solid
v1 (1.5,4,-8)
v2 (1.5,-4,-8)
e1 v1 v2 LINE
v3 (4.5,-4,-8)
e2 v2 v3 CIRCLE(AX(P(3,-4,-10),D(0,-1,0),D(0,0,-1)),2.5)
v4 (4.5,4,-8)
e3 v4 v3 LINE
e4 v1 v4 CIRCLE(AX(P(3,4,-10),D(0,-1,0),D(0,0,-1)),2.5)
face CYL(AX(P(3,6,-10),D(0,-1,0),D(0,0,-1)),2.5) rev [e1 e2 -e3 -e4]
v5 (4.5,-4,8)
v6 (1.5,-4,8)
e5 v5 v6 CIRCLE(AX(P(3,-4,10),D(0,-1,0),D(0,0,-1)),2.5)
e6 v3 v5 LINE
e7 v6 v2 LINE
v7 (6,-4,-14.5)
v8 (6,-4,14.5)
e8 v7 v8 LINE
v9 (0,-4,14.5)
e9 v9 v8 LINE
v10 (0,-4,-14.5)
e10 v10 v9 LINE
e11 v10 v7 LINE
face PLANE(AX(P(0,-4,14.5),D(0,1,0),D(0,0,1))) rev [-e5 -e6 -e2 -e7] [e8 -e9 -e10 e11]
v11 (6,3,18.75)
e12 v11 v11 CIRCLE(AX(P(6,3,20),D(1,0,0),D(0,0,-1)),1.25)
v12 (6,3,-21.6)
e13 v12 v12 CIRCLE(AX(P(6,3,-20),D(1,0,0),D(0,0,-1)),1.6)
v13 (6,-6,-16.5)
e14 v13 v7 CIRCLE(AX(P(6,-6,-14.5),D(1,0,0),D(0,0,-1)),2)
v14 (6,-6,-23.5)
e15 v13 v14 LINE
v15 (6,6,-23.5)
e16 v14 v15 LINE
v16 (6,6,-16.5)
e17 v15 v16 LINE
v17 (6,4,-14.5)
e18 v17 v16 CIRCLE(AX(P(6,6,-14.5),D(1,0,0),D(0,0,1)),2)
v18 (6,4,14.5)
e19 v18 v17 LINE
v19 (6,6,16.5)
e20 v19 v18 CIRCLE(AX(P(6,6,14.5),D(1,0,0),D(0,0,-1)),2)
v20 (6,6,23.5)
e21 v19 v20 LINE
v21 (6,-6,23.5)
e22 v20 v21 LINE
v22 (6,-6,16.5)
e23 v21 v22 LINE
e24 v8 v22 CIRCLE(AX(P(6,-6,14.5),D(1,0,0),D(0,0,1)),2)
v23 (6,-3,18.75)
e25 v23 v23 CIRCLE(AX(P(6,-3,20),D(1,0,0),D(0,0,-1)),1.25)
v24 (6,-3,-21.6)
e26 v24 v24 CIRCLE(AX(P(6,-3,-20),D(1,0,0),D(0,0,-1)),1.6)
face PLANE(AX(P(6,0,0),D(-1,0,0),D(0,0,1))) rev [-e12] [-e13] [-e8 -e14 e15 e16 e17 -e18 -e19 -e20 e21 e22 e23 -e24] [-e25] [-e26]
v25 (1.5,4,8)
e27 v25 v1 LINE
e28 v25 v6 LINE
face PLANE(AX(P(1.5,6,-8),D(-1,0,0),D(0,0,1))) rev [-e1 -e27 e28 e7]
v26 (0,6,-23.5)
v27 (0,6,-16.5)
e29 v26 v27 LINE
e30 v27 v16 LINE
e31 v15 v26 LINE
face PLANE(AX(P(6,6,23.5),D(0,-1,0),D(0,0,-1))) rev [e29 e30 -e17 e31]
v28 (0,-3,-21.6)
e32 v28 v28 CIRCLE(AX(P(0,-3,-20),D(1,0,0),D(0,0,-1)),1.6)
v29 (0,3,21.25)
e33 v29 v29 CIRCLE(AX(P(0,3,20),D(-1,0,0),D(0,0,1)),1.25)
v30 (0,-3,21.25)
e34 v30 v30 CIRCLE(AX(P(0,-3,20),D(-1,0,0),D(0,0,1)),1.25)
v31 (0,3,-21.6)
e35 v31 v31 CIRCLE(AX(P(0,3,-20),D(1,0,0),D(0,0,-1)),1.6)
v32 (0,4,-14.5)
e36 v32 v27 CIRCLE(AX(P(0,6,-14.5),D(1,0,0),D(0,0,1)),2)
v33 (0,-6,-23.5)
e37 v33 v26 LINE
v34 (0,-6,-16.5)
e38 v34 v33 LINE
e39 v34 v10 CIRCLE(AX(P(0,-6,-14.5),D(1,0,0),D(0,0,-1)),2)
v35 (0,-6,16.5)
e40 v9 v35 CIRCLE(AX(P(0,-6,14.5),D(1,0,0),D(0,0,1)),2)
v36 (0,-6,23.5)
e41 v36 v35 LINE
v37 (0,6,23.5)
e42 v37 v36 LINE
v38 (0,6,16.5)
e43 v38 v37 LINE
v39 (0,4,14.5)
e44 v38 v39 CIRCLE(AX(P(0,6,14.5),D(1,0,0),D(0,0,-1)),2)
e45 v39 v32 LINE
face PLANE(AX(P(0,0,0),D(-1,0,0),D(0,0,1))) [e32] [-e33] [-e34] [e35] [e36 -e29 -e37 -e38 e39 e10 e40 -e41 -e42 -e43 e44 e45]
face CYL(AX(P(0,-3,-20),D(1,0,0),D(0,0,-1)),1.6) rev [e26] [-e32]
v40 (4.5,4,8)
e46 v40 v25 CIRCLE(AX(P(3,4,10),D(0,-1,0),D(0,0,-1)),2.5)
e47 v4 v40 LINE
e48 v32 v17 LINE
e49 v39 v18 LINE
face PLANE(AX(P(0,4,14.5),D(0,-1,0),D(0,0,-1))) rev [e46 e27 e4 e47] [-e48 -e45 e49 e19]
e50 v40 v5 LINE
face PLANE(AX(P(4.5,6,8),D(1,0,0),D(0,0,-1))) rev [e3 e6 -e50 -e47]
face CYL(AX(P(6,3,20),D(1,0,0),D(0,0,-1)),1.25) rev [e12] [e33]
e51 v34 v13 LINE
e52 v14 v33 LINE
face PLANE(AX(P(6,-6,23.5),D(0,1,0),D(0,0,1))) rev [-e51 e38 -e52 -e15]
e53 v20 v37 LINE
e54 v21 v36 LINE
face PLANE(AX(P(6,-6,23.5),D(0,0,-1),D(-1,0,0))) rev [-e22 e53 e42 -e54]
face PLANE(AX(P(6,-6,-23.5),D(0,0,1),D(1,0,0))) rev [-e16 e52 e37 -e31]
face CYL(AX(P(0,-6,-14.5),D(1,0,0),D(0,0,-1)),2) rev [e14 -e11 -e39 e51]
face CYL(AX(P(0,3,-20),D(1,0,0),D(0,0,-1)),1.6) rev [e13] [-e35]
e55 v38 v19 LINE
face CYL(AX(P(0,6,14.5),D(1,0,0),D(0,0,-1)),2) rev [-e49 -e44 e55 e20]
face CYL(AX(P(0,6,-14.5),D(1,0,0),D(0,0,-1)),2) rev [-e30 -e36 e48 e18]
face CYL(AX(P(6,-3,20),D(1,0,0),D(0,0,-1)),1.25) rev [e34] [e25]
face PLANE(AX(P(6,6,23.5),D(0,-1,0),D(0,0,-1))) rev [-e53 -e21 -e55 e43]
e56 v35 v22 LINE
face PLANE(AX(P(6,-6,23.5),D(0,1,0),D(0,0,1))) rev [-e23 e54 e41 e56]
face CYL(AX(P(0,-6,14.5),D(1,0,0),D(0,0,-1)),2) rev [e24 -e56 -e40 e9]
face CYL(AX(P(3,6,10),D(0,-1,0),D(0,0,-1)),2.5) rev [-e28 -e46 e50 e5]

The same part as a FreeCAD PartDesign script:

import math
import FreeCAD as App
import Part
import Sketcher

V = App.Vector
Q = App.Units.Quantity


def add_polygon(sketch, points):
    """Adds a closed chain of lines whose ends are joined by coincident constraints."""
    first, n = sketch.GeometryCount, len(points)
    for a, b in zip(points, points[1:] + points[:1]):
        sketch.addGeometry(Part.LineSegment(App.Vector(*a, 0), App.Vector(*b, 0)), False)
    for i in range(n):
        sketch.addConstraint(Sketcher.Constraint("Coincident", first + i, 2, first + (i + 1) % n, 1))

doc = App.newDocument("Part")
body = doc.addObject("PartDesign::Body", "Body")

sketch1 = body.newObject("Sketcher::SketchObject", "Sketch")
sketch1.AttachmentSupport = (doc.getObject("YZ_Plane"), [""])
sketch1.MapMode = "FlatFace"
add_polygon(sketch1, [(6, 23.5), (-6, 23.5), (-6, -23.5), (6, -23.5)])
sketch1.addConstraint(Sketcher.Constraint("Horizontal", 0))
sketch1.addConstraint(Sketcher.Constraint("Vertical", 1))
sketch1.addConstraint(Sketcher.Constraint("Horizontal", 2))
sketch1.addConstraint(Sketcher.Constraint("Vertical", 3))
sketch1.addConstraint(Sketcher.Constraint("Symmetric", 0, 2, 2, 2, -1, 1))
sketch1.addConstraint(Sketcher.Constraint("DistanceX", 0, 2, 0, 1, Q("12 mm")))
sketch1.addConstraint(Sketcher.Constraint("DistanceY", 1, 2, 1, 1, Q("47 mm")))
pad1 = body.newObject("PartDesign::Pad", "Pad")
pad1.Profile = sketch1
pad1.Length = 6

sketch2 = body.newObject("Sketcher::SketchObject", "Sketch001")
sketch2.AttachmentSupport = (doc.getObject("YZ_Plane"), [""])
sketch2.MapMode = "FlatFace"
sketch2.AttachmentOffset = App.Placement(V(0, 0, 6), App.Rotation())
sketch2.addGeometry(Part.LineSegment(V(6, -16.5, 0), V(6, 16.5, 0)), False)
sketch2.addGeometry(Part.ArcOfCircle(Part.Circle(V(6, 14.5, 0), V(0, 0, 1), 2), math.radians(90), math.radians(180)), False)
sketch2.addGeometry(Part.LineSegment(V(4, 14.5, 0), V(4, -14.5, 0)), False)
sketch2.addGeometry(Part.ArcOfCircle(Part.Circle(V(6, -14.5, 0), V(0, 0, 1), 2), math.radians(-180), math.radians(-90)), False)
sketch2.addGeometry(Part.LineSegment(V(-4, -14.5, 0), V(-4, 14.5, 0)), False)
sketch2.addGeometry(Part.ArcOfCircle(Part.Circle(V(-6, 14.5, 0), V(0, 0, 1), 2), math.radians(0), math.radians(90)), False)
sketch2.addGeometry(Part.LineSegment(V(-6, 16.5, 0), V(-6, -16.5, 0)), False)
sketch2.addGeometry(Part.ArcOfCircle(Part.Circle(V(-6, -14.5, 0), V(0, 0, 1), 2), math.radians(-90), math.radians(0)), False)
sketch2.addConstraint(Sketcher.Constraint("Coincident", 0, 2, 1, 1))
sketch2.addConstraint(Sketcher.Constraint("Tangent", 1, 2, 2, 1))
sketch2.addConstraint(Sketcher.Constraint("Tangent", 2, 2, 3, 1))
sketch2.addConstraint(Sketcher.Constraint("Coincident", 3, 2, 0, 1))
sketch2.addConstraint(Sketcher.Constraint("Tangent", 4, 2, 5, 1))
sketch2.addConstraint(Sketcher.Constraint("Coincident", 5, 2, 6, 1))
sketch2.addConstraint(Sketcher.Constraint("Coincident", 6, 2, 7, 1))
sketch2.addConstraint(Sketcher.Constraint("Tangent", 7, 2, 4, 1))
sketch2.addConstraint(Sketcher.Constraint("Vertical", 0))
sketch2.addConstraint(Sketcher.Constraint("Vertical", 2))
sketch2.addConstraint(Sketcher.Constraint("Vertical", 4))
sketch2.addConstraint(Sketcher.Constraint("Vertical", 6))
sketch2.addConstraint(Sketcher.Constraint("Equal", 1, 3))
sketch2.addConstraint(Sketcher.Constraint("Equal", 3, 5))
sketch2.addConstraint(Sketcher.Constraint("Equal", 5, 7))
sketch2.addConstraint(Sketcher.Constraint("Symmetric", 3, 3, 5, 3, -1, 1))
sketch2.addConstraint(Sketcher.Constraint("Symmetric", 0, 2, 6, 2, -1, 1))
sketch2.addConstraint(Sketcher.Constraint("Horizontal", 1, 3, 5, 3))
sketch2.addConstraint(Sketcher.Constraint("Vertical", 3, 3, 0, 2))
sketch2.addConstraint(Sketcher.Constraint("Radius", 1, Q("2 mm")))
sketch2.addConstraint(Sketcher.Constraint("DistanceY", 0, 1, 0, 2, Q("33 mm")))
sketch2.addConstraint(Sketcher.Constraint("DistanceX", -1, 1, 1, 3, Q("6 mm")))
pocket1 = body.newObject("PartDesign::Pocket", "Pocket")
pocket1.Profile = sketch2
pocket1.Type = "ThroughAll"

sketch3 = body.newObject("Sketcher::SketchObject", "Sketch002")
sketch3.AttachmentSupport = (doc.getObject("YZ_Plane"), [""])
sketch3.MapMode = "FlatFace"
sketch3.AttachmentOffset = App.Placement(V(0, 0, 6), App.Rotation())
sketch3.addGeometry(Part.Circle(V(3, -20, 0), V(0, 0, 1), 1.6), False)
sketch3.addGeometry(Part.Circle(V(-3, -20, 0), V(0, 0, 1), 1.6), False)
sketch3.addConstraint(Sketcher.Constraint("Equal", 0, 1))
sketch3.addConstraint(Sketcher.Constraint("Symmetric", 0, 3, 1, 3, -2))
sketch3.addConstraint(Sketcher.Constraint("Diameter", 0, Q("3.2 mm")))
sketch3.addConstraint(Sketcher.Constraint("DistanceX", -1, 1, 0, 3, Q("3 mm")))
sketch3.addConstraint(Sketcher.Constraint("DistanceY", 0, 3, -1, 1, Q("20 mm")))
pocket2 = body.newObject("PartDesign::Pocket", "Pocket001")
pocket2.Profile = sketch3
pocket2.Type = "ThroughAll"

sketch4 = body.newObject("Sketcher::SketchObject", "Sketch003")
sketch4.AttachmentSupport = (doc.getObject("YZ_Plane"), [""])
sketch4.MapMode = "FlatFace"
sketch4.AttachmentOffset = App.Placement(V(0, 0, 6), App.Rotation())
sketch4.addGeometry(Part.Circle(V(3, 20, 0), V(0, 0, 1), 1.25), False)
sketch4.addGeometry(Part.Circle(V(-3, 20, 0), V(0, 0, 1), 1.25), False)
sketch4.addConstraint(Sketcher.Constraint("Equal", 0, 1))
sketch4.addConstraint(Sketcher.Constraint("Symmetric", 0, 3, 1, 3, -2))
sketch4.addConstraint(Sketcher.Constraint("Diameter", 0, Q("2.5 mm")))
sketch4.addConstraint(Sketcher.Constraint("DistanceX", -1, 1, 0, 3, Q("3 mm")))
sketch4.addConstraint(Sketcher.Constraint("DistanceY", -1, 1, 0, 3, Q("20 mm")))
doc.recompute()
hole = body.newObject("PartDesign::Hole", "Hole")
hole.Profile = sketch4
hole.ThreadType = "None"
hole.Diameter = 2.5
hole.DepthType = "Dimension"
hole.Depth = 7.5
hole.DrillPoint = "Angled"
hole.DrillPointAngle = 118

sketch5 = body.newObject("Sketcher::SketchObject", "Sketch004")
sketch5.AttachmentSupport = (doc.getObject("XZ_Plane"), [""])
sketch5.MapMode = "FlatFace"
sketch5.AttachmentOffset = App.Placement(V(0, 0, 4), App.Rotation())
sketch5.addGeometry(Part.LineSegment(V(4.5, -8, 0), V(4.5, 8, 0)), False)
sketch5.addGeometry(Part.ArcOfCircle(Part.Circle(V(3, 10, 0), V(0, 0, 1), 2.5), math.radians(-53.130102), math.radians(233.130102)), False)
sketch5.addGeometry(Part.LineSegment(V(1.5, 8, 0), V(1.5, -8, 0)), False)
sketch5.addGeometry(Part.ArcOfCircle(Part.Circle(V(3, -10, 0), V(0, 0, 1), 2.5), math.radians(126.869898), math.radians(413.130102)), False)
sketch5.addConstraint(Sketcher.Constraint("Coincident", 0, 2, 1, 1))
sketch5.addConstraint(Sketcher.Constraint("Coincident", 1, 2, 2, 1))
sketch5.addConstraint(Sketcher.Constraint("Coincident", 2, 2, 3, 1))
sketch5.addConstraint(Sketcher.Constraint("Coincident", 3, 2, 0, 1))
sketch5.addConstraint(Sketcher.Constraint("Vertical", 0))
sketch5.addConstraint(Sketcher.Constraint("Vertical", 2))
sketch5.addConstraint(Sketcher.Constraint("Equal", 1, 3))
sketch5.addConstraint(Sketcher.Constraint("Symmetric", 1, 3, 3, 3, -1))
sketch5.addConstraint(Sketcher.Constraint("Horizontal", 0, 2, 1, 2))
sketch5.addConstraint(Sketcher.Constraint("Radius", 1, Q("2.5 mm")))
sketch5.addConstraint(Sketcher.Constraint("DistanceY", 0, 1, 0, 2, Q("16 mm")))
sketch5.addConstraint(Sketcher.Constraint("DistanceX", -1, 1, 1, 3, Q("3 mm")))
sketch5.addConstraint(Sketcher.Constraint("DistanceY", -1, 1, 1, 3, Q("10 mm")))
pocket3 = body.newObject("PartDesign::Pocket", "Pocket002")
pocket3.Profile = sketch5
pocket3.Type = "ThroughAll"

doc.recompute()
